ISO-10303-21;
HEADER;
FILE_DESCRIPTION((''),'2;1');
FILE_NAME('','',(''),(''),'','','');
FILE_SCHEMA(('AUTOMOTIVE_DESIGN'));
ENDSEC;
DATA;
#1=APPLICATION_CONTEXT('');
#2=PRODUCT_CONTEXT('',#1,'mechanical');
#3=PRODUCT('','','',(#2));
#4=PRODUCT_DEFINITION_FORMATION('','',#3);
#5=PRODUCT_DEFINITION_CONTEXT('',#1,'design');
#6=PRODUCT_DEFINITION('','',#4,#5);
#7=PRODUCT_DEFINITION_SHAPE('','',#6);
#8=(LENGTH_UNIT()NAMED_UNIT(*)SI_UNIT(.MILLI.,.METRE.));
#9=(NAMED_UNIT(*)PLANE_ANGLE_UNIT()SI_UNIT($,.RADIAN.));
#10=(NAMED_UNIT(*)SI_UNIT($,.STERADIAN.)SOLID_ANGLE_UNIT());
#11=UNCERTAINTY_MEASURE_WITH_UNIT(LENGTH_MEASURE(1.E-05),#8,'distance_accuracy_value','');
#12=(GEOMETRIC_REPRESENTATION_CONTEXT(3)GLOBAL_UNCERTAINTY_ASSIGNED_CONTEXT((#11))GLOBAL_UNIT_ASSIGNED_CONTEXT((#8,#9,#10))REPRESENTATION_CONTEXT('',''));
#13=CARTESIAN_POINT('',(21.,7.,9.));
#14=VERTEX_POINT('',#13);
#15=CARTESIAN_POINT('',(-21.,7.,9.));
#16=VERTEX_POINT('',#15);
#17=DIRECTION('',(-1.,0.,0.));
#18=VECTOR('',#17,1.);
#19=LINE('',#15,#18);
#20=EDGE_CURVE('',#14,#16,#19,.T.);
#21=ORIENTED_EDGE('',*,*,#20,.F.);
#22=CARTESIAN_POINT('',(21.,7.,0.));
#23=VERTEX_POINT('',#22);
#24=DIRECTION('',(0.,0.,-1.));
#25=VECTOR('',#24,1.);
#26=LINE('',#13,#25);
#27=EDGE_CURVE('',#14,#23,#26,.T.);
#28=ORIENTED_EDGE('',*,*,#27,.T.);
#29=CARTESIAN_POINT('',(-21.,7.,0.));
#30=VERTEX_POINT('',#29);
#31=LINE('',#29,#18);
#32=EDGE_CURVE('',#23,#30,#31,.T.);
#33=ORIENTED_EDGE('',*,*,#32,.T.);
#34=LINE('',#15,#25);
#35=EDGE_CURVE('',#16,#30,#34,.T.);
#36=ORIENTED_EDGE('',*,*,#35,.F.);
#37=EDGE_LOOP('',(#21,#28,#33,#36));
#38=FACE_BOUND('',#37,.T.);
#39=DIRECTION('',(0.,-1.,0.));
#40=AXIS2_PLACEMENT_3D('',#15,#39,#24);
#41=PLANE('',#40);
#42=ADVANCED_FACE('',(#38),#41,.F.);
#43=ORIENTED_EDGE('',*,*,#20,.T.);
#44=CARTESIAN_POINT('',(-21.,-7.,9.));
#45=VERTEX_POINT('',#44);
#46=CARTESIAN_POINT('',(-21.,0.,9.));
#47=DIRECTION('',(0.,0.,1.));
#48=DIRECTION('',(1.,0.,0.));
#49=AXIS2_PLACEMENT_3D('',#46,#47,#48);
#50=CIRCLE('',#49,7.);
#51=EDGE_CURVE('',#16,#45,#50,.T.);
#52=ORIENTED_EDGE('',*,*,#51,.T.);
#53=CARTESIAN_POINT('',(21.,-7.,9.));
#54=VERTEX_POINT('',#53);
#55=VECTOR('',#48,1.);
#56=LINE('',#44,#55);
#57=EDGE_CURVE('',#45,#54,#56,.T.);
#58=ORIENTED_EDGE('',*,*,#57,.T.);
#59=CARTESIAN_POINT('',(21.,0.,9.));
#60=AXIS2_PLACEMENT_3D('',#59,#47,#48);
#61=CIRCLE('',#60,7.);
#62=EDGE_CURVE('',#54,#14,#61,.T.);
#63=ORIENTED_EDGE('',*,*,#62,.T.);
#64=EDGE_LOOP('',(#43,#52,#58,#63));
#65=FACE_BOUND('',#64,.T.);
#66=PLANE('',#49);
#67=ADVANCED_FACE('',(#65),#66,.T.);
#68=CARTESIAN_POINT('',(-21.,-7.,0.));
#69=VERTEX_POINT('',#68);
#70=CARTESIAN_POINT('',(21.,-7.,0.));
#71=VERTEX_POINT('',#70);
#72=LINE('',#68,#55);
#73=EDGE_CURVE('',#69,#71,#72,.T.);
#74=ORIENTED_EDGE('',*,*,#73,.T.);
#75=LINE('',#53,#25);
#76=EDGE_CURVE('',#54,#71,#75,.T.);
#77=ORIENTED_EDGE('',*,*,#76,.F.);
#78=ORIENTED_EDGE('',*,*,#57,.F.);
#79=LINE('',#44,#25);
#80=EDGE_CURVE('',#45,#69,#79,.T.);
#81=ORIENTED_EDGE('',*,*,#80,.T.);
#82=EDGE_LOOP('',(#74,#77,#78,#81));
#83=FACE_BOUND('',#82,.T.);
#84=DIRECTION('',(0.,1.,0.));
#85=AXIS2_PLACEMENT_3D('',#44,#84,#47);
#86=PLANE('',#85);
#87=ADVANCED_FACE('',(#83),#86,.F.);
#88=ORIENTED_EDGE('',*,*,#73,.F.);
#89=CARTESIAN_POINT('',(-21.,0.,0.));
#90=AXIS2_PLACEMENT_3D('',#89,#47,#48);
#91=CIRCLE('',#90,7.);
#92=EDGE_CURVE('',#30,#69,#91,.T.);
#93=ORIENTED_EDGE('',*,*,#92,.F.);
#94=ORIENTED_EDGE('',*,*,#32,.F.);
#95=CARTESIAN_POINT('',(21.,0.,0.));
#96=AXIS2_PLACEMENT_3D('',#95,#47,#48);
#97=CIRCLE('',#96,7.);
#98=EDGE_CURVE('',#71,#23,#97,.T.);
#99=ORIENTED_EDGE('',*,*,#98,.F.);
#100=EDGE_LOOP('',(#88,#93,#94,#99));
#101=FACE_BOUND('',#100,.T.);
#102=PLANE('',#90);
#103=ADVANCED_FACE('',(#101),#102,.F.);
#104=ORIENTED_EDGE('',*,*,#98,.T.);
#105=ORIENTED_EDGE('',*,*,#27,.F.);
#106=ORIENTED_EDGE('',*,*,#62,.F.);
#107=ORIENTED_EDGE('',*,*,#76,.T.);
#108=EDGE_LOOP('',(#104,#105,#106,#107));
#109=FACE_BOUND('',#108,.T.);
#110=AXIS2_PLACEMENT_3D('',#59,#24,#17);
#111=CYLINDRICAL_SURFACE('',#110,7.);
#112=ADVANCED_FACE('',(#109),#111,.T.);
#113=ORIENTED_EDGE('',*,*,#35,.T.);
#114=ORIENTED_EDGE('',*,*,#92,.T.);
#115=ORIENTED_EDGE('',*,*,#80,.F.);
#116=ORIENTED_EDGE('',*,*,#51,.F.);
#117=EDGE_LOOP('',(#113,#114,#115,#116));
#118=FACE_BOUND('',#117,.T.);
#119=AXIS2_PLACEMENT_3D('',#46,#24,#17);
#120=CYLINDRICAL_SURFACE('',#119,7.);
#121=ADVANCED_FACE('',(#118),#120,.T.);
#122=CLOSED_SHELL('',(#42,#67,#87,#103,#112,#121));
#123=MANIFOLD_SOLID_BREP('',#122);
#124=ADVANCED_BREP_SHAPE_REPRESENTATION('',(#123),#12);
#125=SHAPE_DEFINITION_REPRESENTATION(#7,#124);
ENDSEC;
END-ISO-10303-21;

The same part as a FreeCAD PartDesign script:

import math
import FreeCAD as App
import Part
import Sketcher

V = App.Vector
Q = App.Units.Quantity

doc = App.newDocument("Part")
body = doc.addObject("PartDesign::Body", "Body")

sketch1 = body.newObject("Sketcher::SketchObject", "Sketch")
sketch1.AttachmentSupport = (doc.getObject("XY_Plane"), [""])
sketch1.MapMode = "FlatFace"
sketch1.addGeometry([
    Part.LineSegment(V(21, 7, 0), V(-21, 7, 0)),
    Part.ArcOfCircle(Part.Circle(V(-21, 0, 0), V(0, 0, 1), 7), math.radians(90), math.radians(270)),
    Part.LineSegment(V(-21, -7, 0), V(21, -7, 0)),
    Part.ArcOfCircle(Part.Circle(V(21, 0, 0), V(0, 0, 1), 7), math.radians(-90), math.radians(90)),
], False)
sketch1.addConstraint([
    Sketcher.Constraint("Tangent", 0, 2, 1, 1),
    Sketcher.Constraint("Tangent", 1, 2, 2, 1),
    Sketcher.Constraint("Tangent", 2, 2, 3, 1),
    Sketcher.Constraint("Tangent", 3, 2, 0, 1),
    Sketcher.Constraint("Horizontal", 0),
    Sketcher.Constraint("Horizontal", 2),
    Sketcher.Constraint("Symmetric", 1, 3, 3, 3, -1, 1),
    Sketcher.Constraint("Radius", 1, Q("7 mm")),
    Sketcher.Constraint("DistanceX", 0, 2, 0, 1, Q("42 mm")),
])
pad1 = body.newObject("PartDesign::Pad", "Pad")
pad1.Profile = sketch1
pad1.Length = 9

doc.recompute()
